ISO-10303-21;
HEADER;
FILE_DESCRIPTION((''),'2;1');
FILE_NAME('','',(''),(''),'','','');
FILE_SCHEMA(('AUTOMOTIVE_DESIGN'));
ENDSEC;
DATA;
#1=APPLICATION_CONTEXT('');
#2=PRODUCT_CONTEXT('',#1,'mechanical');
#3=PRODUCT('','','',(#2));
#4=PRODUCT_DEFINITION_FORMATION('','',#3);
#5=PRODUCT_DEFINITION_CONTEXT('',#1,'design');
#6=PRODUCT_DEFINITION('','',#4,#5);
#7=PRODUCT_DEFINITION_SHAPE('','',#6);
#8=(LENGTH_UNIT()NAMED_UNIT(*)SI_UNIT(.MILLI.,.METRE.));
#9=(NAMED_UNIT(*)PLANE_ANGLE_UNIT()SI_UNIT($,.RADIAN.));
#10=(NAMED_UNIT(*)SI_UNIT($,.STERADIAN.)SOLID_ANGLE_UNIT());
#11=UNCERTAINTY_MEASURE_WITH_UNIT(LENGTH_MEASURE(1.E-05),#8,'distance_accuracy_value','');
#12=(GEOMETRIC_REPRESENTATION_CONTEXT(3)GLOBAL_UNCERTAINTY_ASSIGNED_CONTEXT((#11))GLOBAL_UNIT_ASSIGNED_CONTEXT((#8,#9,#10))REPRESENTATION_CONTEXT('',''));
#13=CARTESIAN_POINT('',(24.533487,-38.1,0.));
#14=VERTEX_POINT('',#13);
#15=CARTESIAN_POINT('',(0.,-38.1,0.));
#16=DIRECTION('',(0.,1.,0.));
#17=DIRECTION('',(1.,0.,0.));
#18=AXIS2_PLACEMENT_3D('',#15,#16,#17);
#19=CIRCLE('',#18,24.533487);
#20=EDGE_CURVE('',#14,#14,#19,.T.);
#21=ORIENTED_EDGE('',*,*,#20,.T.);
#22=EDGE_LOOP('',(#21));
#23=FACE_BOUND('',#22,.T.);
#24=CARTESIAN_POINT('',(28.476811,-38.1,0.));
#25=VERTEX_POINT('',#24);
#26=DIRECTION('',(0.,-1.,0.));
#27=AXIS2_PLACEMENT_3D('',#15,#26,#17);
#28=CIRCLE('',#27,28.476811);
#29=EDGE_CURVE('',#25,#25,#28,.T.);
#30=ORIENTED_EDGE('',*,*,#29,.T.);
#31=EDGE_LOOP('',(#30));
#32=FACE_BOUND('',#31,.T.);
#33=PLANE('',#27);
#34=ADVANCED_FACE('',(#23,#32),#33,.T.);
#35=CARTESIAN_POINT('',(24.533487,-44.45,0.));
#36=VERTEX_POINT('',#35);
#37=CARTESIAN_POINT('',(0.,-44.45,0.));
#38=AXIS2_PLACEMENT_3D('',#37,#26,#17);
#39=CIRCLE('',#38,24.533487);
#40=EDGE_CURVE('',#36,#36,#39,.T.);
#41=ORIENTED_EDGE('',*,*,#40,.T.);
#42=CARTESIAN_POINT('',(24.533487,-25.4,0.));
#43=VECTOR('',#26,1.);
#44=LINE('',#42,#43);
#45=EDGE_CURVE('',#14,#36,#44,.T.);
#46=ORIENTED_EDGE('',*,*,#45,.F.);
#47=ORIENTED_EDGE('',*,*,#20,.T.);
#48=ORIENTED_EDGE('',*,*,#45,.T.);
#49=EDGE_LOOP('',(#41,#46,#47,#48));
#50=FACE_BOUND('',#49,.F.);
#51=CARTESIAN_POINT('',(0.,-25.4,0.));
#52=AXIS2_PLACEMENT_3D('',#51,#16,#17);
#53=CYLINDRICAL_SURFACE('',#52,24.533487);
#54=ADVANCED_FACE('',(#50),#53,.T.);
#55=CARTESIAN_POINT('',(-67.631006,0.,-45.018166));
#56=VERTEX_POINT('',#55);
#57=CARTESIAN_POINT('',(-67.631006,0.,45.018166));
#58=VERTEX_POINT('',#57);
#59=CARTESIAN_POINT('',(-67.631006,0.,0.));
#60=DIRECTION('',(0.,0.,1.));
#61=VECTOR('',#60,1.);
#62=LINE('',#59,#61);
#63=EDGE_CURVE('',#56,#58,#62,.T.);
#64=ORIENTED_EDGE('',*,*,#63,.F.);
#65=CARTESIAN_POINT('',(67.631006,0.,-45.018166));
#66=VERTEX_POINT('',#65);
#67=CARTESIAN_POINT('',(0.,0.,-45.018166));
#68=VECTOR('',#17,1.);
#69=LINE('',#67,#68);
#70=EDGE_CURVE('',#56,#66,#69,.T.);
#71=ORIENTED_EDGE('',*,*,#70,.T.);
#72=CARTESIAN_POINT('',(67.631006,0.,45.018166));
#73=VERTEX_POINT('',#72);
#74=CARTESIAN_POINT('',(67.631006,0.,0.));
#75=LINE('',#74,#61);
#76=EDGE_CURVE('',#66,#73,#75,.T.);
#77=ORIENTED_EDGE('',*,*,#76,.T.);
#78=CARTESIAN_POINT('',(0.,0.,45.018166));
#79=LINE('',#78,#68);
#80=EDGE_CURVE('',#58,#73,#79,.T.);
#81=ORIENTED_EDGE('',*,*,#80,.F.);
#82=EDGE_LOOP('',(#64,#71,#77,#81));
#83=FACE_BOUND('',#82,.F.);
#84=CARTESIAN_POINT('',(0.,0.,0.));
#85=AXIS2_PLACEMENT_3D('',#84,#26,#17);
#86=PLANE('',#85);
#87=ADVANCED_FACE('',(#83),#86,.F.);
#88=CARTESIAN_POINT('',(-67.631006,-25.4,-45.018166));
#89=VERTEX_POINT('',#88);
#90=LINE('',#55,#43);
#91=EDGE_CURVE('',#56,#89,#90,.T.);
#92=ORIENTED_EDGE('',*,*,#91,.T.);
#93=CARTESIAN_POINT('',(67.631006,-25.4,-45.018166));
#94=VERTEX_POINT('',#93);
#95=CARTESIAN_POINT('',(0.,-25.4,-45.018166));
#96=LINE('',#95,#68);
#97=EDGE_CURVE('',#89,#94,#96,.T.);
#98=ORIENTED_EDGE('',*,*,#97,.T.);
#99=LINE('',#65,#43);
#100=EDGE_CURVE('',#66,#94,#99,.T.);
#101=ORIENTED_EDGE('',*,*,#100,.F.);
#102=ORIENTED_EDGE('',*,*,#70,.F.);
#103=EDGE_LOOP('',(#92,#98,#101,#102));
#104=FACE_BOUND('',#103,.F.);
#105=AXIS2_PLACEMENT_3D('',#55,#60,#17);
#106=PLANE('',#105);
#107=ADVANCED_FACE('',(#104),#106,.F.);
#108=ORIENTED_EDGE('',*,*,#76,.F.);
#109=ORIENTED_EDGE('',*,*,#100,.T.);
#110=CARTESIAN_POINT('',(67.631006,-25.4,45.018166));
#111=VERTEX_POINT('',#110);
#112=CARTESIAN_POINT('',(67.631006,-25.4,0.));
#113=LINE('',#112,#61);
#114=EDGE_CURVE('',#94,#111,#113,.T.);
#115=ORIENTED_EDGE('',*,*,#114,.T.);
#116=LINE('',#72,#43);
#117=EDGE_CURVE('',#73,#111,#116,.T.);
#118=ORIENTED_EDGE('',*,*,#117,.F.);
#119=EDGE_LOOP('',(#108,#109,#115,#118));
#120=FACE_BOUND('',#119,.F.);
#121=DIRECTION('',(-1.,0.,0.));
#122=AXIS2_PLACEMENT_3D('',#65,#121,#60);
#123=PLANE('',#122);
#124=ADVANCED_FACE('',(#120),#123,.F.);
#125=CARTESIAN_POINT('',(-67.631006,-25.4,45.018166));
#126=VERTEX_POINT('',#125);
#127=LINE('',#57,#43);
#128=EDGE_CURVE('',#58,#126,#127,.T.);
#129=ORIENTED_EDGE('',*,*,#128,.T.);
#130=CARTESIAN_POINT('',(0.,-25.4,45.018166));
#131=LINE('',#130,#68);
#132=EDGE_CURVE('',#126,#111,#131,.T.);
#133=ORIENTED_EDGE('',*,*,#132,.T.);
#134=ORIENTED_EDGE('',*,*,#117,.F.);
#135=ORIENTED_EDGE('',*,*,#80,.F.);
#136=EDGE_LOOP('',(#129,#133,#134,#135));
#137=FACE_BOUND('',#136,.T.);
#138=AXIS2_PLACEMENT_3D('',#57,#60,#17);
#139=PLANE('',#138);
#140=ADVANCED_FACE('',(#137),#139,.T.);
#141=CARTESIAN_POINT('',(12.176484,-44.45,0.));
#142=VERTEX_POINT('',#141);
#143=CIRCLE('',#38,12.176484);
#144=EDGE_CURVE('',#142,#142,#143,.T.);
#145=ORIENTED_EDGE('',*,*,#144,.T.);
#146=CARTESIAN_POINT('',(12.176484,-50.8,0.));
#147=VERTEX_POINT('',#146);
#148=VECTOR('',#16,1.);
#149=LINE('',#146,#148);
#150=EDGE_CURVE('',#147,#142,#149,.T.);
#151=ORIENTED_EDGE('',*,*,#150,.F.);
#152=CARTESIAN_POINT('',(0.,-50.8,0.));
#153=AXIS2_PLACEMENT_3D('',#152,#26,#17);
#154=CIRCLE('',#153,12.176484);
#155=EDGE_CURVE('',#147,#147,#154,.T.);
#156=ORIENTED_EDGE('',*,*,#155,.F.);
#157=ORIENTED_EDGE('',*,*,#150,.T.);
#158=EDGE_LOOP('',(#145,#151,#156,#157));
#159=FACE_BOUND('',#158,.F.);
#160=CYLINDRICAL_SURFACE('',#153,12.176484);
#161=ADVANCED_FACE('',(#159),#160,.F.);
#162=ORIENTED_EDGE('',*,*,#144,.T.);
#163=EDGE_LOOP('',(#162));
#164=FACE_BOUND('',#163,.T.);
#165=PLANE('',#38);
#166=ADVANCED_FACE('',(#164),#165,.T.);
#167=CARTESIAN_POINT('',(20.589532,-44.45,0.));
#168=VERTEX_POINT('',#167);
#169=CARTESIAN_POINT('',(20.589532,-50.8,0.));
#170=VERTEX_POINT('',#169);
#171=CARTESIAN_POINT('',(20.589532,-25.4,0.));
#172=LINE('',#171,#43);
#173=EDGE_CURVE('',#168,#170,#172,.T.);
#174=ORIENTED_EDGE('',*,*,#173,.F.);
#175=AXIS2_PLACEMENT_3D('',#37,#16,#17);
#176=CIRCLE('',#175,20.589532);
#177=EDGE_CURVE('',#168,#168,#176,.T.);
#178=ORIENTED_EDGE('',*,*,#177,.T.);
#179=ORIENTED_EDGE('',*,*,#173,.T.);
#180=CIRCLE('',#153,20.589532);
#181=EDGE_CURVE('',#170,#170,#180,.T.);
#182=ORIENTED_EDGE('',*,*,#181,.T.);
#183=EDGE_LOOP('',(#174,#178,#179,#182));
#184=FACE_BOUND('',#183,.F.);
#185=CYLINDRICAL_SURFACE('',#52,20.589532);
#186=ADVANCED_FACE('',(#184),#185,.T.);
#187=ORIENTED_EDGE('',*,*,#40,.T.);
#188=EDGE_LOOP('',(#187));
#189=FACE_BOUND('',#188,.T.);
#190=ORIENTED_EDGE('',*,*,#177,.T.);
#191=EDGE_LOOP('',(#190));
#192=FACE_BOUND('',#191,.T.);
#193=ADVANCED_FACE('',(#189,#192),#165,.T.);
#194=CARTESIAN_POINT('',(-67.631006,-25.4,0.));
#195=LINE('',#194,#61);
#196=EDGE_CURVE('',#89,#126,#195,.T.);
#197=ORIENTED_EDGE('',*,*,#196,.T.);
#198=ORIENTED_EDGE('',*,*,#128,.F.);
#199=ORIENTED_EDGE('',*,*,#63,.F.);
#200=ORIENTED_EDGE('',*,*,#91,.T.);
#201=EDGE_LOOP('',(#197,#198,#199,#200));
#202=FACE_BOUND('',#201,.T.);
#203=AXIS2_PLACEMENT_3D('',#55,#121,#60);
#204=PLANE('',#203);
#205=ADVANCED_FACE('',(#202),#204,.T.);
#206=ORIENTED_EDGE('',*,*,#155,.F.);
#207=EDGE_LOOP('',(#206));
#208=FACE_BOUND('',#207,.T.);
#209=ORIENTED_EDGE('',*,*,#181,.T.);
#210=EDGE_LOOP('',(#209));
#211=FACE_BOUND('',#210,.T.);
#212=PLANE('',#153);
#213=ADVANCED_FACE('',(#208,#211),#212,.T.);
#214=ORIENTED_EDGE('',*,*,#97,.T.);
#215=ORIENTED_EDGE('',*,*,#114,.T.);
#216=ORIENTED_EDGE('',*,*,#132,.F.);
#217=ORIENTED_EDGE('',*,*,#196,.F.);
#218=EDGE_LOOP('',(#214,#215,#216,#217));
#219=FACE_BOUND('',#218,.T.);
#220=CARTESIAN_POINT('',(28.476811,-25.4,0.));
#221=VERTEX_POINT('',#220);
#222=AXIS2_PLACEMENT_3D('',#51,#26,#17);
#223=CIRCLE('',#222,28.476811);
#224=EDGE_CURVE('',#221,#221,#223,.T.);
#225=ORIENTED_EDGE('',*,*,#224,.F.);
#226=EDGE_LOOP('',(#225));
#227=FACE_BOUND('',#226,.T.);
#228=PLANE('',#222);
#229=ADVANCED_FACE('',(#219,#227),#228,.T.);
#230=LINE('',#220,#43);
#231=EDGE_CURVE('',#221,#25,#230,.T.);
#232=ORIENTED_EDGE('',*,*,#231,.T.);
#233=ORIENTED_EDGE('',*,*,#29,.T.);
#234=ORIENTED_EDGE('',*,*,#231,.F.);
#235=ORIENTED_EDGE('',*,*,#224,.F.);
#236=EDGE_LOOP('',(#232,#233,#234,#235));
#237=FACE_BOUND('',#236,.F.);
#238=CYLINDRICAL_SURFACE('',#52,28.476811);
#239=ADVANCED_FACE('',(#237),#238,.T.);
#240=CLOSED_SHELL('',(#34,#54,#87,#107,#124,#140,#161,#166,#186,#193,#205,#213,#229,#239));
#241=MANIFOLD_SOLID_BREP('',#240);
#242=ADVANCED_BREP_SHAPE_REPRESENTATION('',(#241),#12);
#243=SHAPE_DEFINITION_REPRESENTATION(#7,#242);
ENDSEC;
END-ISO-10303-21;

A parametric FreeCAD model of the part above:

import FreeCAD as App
import Part
import Sketcher
from FreeCAD import Vector
Q = App.Units.Quantity


def add_polygon(sketch, points):
    """Adds a closed chain of lines whose ends are joined by coincident constraints."""
    first, n = sketch.GeometryCount, len(points)
    for a, b in zip(points, points[1:] + points[:1]):
        sketch.addGeometry(Part.LineSegment(App.Vector(*a, 0), App.Vector(*b, 0)), False)
    for i in range(n):
        sketch.addConstraint(Sketcher.Constraint("Coincident", first + i, 2, first + (i + 1) % n, 1))

doc = App.newDocument("Part")
params = doc.addObject("Spreadsheet::Sheet", "Params")
for row, (alias, value) in enumerate([
    ("pad1_length", "1 in"),
    ("pad2_length", "1 in"),
    ("pad3_length", "1.5 in"),
    ("pocket1_length", "1 in"),
    ("pad4_length", "0.75 in"),
    ("pad5_length", "0.5 in"),
], start=1):
    params.set(f"A{row}", alias)
    params.set(f"B{row}", "=" + value)
    params.setAlias(f"B{row}", alias)

body = doc.addObject("PartDesign::Body", "Body")

sketch1 = body.newObject("Sketcher::SketchObject", "Sketch")
sketch1.AttachmentSupport = (doc.getObject("XZ_Plane"), [""])
sketch1.MapMode = "FlatFace"
add_polygon(sketch1, [(-68, 45), (-68, -45), (68, -45), (68, 45)])
sketch1.addConstraint(Sketcher.Constraint("Vertical", 0))
sketch1.addConstraint(Sketcher.Constraint("Horizontal", 1))
sketch1.addConstraint(Sketcher.Constraint("Vertical", 2))
sketch1.addConstraint(Sketcher.Constraint("Horizontal", 3))
sketch1.addConstraint(Sketcher.Constraint("Symmetric", 0, 2, 2, 2, -1, 1))
sketch1.addConstraint(Sketcher.Constraint("DistanceX", 1, 1, 1, 2, Q("135.262012 mm")))
sketch1.addConstraint(Sketcher.Constraint("DistanceY", 0, 2, 0, 1, Q("90.036332 mm")))
pad1 = body.newObject("PartDesign::Pad", "Pad")
pad1.Profile = sketch1
pad1.setExpression("Length", "Params.pad1_length")

sketch2 = body.newObject("Sketcher::SketchObject", "Sketch001")
sketch2.AttachmentSupport = (doc.getObject("XZ_Plane"), [""])
sketch2.MapMode = "FlatFace"
sketch2.AttachmentOffset = App.Placement(Vector(0, 0, 1 * 25.4), App.Rotation())
sketch2.addGeometry(Part.Circle(Vector(0, 0, 0), Vector(0, 0, 1), 21), False)
sketch2.addConstraint(Sketcher.Constraint("Coincident", 0, 3, -1, 1))
sketch2.addConstraint(Sketcher.Constraint("Diameter", 0, Q("41.179064 mm")))
pad2 = body.newObject("PartDesign::Pad", "Pad001")
pad2.Profile = sketch2
pad2.setExpression("Length", "Params.pad2_length")

sketch3 = body.newObject("Sketcher::SketchObject", "Sketch002")
sketch3.AttachmentSupport = (doc.getObject("XZ_Plane"), [""])
sketch3.MapMode = "FlatFace"
sketch3.addGeometry(Part.Circle(Vector(0, 0, 0), Vector(0, 0, 1), 10), False)
sketch3.addConstraint(Sketcher.Constraint("Coincident", 0, 3, -1, 1))
sketch3.addConstraint(Sketcher.Constraint("Diameter", 0, Q("20.8821 mm")))
pad3 = body.newObject("PartDesign::Pad", "Pad002")
pad3.Profile = sketch3
pad3.setExpression("Length", "Params.pad3_length")

sketch4 = body.newObject("Sketcher::SketchObject", "Sketch003")
sketch4.AttachmentSupport = (doc.getObject("XZ_Plane"), [""])
sketch4.MapMode = "FlatFace"
sketch4.AttachmentOffset = App.Placement(Vector(0, 0, 2 * 25.4), App.Rotation())
sketch4.addGeometry(Part.Circle(Vector(0, 0, 0), Vector(0, 0, 1), 12), False)
sketch4.addConstraint(Sketcher.Constraint("Coincident", 0, 3, -1, 1))
sketch4.addConstraint(Sketcher.Constraint("Diameter", 0, Q("24.352968 mm")))
pocket1 = body.newObject("PartDesign::Pocket", "Pocket")
pocket1.Profile = sketch4
pocket1.setExpression("Length", "Params.pocket1_length")

sketch5 = body.newObject("Sketcher::SketchObject", "Sketch004")
sketch5.AttachmentSupport = (doc.getObject("XZ_Plane"), [""])
sketch5.MapMode = "FlatFace"
sketch5.AttachmentOffset = App.Placement(Vector(0, 0, 1 * 25.4), App.Rotation())
sketch5.addGeometry(Part.Circle(Vector(0, 0, 0), Vector(0, 0, 1), 25), False)
sketch5.addConstraint(Sketcher.Constraint("Coincident", 0, 3, -1, 1))
sketch5.addConstraint(Sketcher.Constraint("Diameter", 0, Q("49.066974 mm")))
pad4 = body.newObject("PartDesign::Pad", "Pad003")
pad4.Profile = sketch5
pad4.setExpression("Length", "Params.pad4_length")

sketch6 = body.newObject("Sketcher::SketchObject", "Sketch005")
sketch6.AttachmentSupport = (doc.getObject("XZ_Plane"), [""])
sketch6.MapMode = "FlatFace"
sketch6.AttachmentOffset = App.Placement(Vector(0, 0, 1 * 25.4), App.Rotation())
sketch6.addGeometry(Part.Circle(Vector(0, 0, 0), Vector(0, 0, 1), 28), False)
sketch6.addConstraint(Sketcher.Constraint("Coincident", 0, 3, -1, 1))
sketch6.addConstraint(Sketcher.Constraint("Diameter", 0, Q("56.953622 mm")))
pad5 = body.newObject("PartDesign::Pad", "Pad004")
pad5.Profile = sketch6
pad5.setExpression("Length", "Params.pad5_length")

doc.recompute()
